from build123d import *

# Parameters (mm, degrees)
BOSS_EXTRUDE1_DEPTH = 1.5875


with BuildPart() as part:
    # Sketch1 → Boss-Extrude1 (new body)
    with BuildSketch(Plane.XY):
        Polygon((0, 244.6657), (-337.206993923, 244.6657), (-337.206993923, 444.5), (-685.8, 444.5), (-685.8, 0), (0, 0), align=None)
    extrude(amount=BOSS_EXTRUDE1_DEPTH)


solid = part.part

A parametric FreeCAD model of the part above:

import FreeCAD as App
import Part
import Sketcher

V = App.Vector
Q = App.Units.Quantity


def add_polygon(sketch, points):
    """Adds a closed chain of lines whose ends are joined by coincident constraints."""
    first, n = sketch.GeometryCount, len(points)
    for a, b in zip(points, points[1:] + points[:1]):
        sketch.addGeometry(Part.LineSegment(App.Vector(*a, 0), App.Vector(*b, 0)), False)
    for i in range(n):
        sketch.addConstraint(Sketcher.Constraint("Coincident", first + i, 2, first + (i + 1) % n, 1))

doc = App.newDocument("Part")
body = doc.addObject("PartDesign::Body", "Body")

# Sketch on XY plane
sketch1 = doc.addObject("Sketcher::SketchObject", "Sketch")
body.addObject(sketch1)
sketch1.AttachmentSupport = (doc.XY_Plane, [""])
sketch1.MapMode = "FlatFace"
add_polygon(sketch1, [(0, 245), (-337, 245), (-337, 444), (-686, 444), (-686, 0), (0, 0)])  # lines 0-5
sketch1.addConstraint([
    Sketcher.Constraint("Horizontal", 0),
    Sketcher.Constraint("Vertical", 1),
    Sketcher.Constraint("Horizontal", 2),
    Sketcher.Constraint("Vertical", 3),
    Sketcher.Constraint("Horizontal", 4),
    Sketcher.Constraint("Vertical", 5),
    Sketcher.Constraint("Coincident", 4, 2, -1, 1),
    Sketcher.Constraint("DistanceX", 4, 1, 4, 2, Q("27 in")),
    Sketcher.Constraint("DistanceY", 3, 2, 3, 1, Q("17.5 in")),
    Sketcher.Constraint("DistanceY", 1, 1, 1, 2, 199.8343),
    Sketcher.Constraint("DistanceX", 0, 2, 0, 1, 337.206994),
])
pad1 = doc.addObject("PartDesign::Pad", "Pad")
body.addObject(pad1)
pad1.Profile = sketch1
pad1.Length = Q("0.0625 in")

doc.recompute()
